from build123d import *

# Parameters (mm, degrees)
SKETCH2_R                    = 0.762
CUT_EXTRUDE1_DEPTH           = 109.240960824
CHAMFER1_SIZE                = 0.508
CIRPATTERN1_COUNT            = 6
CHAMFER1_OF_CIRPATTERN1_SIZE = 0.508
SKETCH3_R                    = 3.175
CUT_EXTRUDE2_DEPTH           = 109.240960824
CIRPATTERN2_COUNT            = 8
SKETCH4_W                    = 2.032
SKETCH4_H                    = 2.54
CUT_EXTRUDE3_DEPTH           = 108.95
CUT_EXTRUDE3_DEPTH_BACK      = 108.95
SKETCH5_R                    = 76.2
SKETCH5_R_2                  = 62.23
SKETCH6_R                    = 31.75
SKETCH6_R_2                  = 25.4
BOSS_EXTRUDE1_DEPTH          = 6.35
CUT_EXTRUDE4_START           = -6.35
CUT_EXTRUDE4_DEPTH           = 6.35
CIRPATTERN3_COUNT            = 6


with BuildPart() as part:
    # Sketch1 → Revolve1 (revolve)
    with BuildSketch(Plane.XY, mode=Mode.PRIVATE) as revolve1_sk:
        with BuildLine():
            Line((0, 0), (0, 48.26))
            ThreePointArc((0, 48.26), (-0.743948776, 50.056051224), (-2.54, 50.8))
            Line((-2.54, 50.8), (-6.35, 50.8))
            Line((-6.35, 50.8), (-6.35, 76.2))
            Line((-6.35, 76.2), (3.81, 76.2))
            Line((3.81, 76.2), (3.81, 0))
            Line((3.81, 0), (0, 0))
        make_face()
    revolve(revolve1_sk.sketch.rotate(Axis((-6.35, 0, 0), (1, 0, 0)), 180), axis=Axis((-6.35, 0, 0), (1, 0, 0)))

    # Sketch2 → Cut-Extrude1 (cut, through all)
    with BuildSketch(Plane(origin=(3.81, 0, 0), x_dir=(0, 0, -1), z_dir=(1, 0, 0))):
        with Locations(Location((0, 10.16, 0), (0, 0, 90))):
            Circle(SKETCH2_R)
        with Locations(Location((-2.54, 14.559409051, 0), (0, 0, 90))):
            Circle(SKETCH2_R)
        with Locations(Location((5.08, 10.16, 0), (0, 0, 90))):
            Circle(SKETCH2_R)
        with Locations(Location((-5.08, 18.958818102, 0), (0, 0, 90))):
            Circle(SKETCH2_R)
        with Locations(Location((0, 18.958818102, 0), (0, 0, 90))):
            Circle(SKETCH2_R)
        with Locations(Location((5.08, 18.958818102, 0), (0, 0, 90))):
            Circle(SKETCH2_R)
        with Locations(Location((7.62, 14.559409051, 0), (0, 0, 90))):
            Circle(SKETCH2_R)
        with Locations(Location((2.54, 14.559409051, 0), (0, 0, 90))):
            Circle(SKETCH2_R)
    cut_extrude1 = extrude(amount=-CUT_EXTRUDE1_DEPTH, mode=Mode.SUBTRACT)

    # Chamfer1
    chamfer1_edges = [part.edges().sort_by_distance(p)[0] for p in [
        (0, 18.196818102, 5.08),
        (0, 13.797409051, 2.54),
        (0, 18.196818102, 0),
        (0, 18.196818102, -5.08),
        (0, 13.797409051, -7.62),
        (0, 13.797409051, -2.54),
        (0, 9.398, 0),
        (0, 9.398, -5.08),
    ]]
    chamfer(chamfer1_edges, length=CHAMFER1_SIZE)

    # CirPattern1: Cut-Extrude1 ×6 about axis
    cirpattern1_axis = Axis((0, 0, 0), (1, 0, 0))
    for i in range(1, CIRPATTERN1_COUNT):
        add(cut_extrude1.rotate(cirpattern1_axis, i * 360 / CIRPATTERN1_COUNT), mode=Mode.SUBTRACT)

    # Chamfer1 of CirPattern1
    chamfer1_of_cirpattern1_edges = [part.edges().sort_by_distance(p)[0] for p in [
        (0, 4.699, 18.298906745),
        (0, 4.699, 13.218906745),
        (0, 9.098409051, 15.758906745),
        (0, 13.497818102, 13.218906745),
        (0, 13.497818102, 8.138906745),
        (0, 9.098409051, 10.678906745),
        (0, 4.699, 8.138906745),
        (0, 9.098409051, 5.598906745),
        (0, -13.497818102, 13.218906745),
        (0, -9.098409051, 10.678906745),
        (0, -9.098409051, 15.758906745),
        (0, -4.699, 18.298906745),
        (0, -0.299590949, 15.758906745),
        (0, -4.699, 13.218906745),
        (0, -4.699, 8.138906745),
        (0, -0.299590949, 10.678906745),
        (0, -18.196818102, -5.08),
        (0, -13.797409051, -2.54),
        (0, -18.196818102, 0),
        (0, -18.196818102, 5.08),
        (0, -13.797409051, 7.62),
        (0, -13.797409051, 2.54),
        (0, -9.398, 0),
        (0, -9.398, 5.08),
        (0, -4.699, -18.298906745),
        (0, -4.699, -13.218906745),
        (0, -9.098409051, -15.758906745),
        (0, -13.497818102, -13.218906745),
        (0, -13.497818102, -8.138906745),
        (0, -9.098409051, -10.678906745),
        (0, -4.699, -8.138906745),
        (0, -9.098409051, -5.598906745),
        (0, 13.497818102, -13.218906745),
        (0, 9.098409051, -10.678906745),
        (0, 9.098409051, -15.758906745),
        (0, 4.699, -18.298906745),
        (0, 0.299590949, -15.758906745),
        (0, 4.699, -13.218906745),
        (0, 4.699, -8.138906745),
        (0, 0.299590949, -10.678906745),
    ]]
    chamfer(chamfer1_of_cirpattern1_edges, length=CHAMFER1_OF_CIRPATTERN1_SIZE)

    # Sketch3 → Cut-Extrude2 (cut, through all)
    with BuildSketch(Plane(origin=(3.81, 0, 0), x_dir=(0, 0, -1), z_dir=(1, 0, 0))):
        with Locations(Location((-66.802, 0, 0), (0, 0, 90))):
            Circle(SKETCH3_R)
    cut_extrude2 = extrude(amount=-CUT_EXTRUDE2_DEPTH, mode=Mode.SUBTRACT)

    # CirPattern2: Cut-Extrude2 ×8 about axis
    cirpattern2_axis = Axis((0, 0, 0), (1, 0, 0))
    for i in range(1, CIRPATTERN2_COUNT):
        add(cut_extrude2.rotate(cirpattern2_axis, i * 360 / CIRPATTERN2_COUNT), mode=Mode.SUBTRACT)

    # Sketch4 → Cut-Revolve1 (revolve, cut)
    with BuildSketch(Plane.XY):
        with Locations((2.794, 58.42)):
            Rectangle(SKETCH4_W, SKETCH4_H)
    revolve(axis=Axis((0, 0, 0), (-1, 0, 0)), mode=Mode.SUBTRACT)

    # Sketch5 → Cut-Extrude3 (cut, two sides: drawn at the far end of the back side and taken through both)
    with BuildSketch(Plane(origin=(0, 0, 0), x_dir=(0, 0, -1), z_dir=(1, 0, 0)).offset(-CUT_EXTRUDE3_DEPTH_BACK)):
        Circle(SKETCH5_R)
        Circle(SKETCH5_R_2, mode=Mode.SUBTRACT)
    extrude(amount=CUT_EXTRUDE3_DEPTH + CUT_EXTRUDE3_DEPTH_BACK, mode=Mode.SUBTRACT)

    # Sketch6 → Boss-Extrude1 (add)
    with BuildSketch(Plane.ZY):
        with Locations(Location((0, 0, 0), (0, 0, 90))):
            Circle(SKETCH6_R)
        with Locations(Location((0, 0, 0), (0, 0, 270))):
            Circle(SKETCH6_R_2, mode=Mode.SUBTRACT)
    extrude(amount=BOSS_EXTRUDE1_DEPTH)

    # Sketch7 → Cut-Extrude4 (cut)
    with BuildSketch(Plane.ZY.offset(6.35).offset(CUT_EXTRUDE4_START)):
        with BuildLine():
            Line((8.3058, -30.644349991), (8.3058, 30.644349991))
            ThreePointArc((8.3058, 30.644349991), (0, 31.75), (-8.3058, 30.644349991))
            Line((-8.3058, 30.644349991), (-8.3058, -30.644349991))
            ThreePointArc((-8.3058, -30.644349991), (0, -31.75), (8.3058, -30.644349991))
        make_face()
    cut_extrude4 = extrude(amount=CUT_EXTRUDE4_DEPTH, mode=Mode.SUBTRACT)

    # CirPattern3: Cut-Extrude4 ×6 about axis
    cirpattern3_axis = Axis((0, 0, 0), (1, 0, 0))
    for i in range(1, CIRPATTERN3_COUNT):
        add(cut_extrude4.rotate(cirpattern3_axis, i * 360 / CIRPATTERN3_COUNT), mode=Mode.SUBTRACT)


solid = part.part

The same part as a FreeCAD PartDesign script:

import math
import FreeCAD as App
import Part
import Sketcher
Q = App.Units.Quantity


def edges_at(feature, points):
    """Names of the edges that pass closest to the given points."""
    edges = feature.Shape.Edges
    near = lambda p: min(range(len(edges)), key=lambda i: edges[i].distToShape(Part.Vertex(*p))[0])
    return sorted({f"Edge{near(p) + 1}" for p in points})

doc = App.newDocument("Part")
params = doc.addObject("Spreadsheet::Sheet", "Params")
for row, (alias, value) in enumerate([
    ("sketch1_radius", "0.1 in"),
    ("sketch1_height", "3 in"),
    ("sketch1_height2", "1 in"),
    ("sketch1_width", "0.4 in"),
    ("revolution_angle", "360 deg"),
    ("sketch2_diameter", "0.06 in"),
    ("chamfer_size", "0.02 in"),
    ("chamfer2_size", "0.02 in"),
    ("sketch3_diameter", "0.25 in"),
    ("sketch4_height", "0.1 in"),
    ("sketch4_width", "0.08 in"),
    ("groove_angle", "360 deg"),
    ("sketch5_diameter", "6 in"),
    ("sketch5_diameter2", "4.9 in"),
    ("sketch6_diameter", "2 in"),
    ("sketch6_diameter2", "2.5 in"),
    ("pad1_length", "0.25 in"),
    ("sketch7_radius", "1.25 in"),
    ("pocket4_length", "0.25 in"),
], start=1):
    params.set(f"A{row}", alias)
    params.set(f"B{row}", "=" + value)
    params.setAlias(f"B{row}", alias)

body = doc.addObject("PartDesign::Body", "Body")

sketch1 = body.newObject("Sketcher::SketchObject", "Sketch")
sketch1.AttachmentSupport = (doc.getObject("XY_Plane"), [""])
sketch1.MapMode = "FlatFace"
sketch1.addGeometry([
    Part.LineSegment(App.Vector(0, 48.3, 0), App.Vector(0, 0, 0)),
    Part.LineSegment(App.Vector(0, 0, 0), App.Vector(3.8, 0, 0)),
    Part.LineSegment(App.Vector(3.8, 0, 0), App.Vector(3.8, 76.2, 0)),
    Part.LineSegment(App.Vector(3.8, 76.2, 0), App.Vector(-6.3, 76.2, 0)),
    Part.LineSegment(App.Vector(-6.3, 76.2, 0), App.Vector(-6.3, 50.8, 0)),
    Part.LineSegment(App.Vector(-6.3, 50.8, 0), App.Vector(-2.5, 50.8, 0)),
    Part.ArcOfCircle(Part.Circle(App.Vector(-2.5, 48.3, 0), App.Vector(0, 0, 1), 2.5), math.radians(0), math.radians(90)),
], False)
sketch1.addConstraint([
    Sketcher.Constraint("Coincident", 0, 2, 1, 1),
    Sketcher.Constraint("Coincident", 1, 2, 2, 1),
    Sketcher.Constraint("Coincident", 2, 2, 3, 1),
    Sketcher.Constraint("Coincident", 3, 2, 4, 1),
    Sketcher.Constraint("Coincident", 4, 2, 5, 1),
    Sketcher.Constraint("Tangent", 5, 2, 6, 2),
    Sketcher.Constraint("Tangent", 6, 1, 0, 1),
    Sketcher.Constraint("Vertical", 0),
    Sketcher.Constraint("Horizontal", 1),
    Sketcher.Constraint("Vertical", 2),
    Sketcher.Constraint("Horizontal", 3),
    Sketcher.Constraint("Vertical", 4),
    Sketcher.Constraint("Horizontal", 5),
    Sketcher.Constraint("Coincident", 0, 2, -1, 1),
    Sketcher.Constraint("Equal", 1, 5),
    Sketcher.Constraint("Radius", 6, Q("0.1 in")),
    Sketcher.Constraint("DistanceY", 2, 1, 2, 2, Q("3 in")),
    Sketcher.Constraint("DistanceY", 4, 2, 4, 1, Q("1 in")),
    Sketcher.Constraint("DistanceX", 3, 2, 3, 1, Q("0.4 in")),
])
sketch1.setExpression("Constraints[15]", "Params.sketch1_radius")
sketch1.setExpression("Constraints[16]", "Params.sketch1_height")
sketch1.setExpression("Constraints[17]", "Params.sketch1_height2")
sketch1.setExpression("Constraints[18]", "Params.sketch1_width")
revolution = body.newObject("PartDesign::Revolution", "Revolution")
revolution.Profile = sketch1
revolution.ReferenceAxis = (sketch1, ["H_Axis"])
revolution.setExpression("Angle", "Params.revolution_angle")

sketch2 = body.newObject("Sketcher::SketchObject", "Sketch001")
sketch2.AttachmentSupport = (doc.getObject("YZ_Plane"), [""])
sketch2.MapMode = "FlatFace"
sketch2.AttachmentOffset = App.Placement(App.Vector(0, 0, 0.15 * 25.4), App.Rotation())
sketch2.addGeometry([
    Part.Circle(App.Vector(10.2, 0, 0), App.Vector(0, 0, 1), 0.8),
    Part.Circle(App.Vector(14.6, 2.5, 0), App.Vector(0, 0, 1), 0.8),
    Part.Circle(App.Vector(10.2, -5.1, 0), App.Vector(0, 0, 1), 0.8),
    Part.Circle(App.Vector(19, 5.1, 0), App.Vector(0, 0, 1), 0.8),
    Part.Circle(App.Vector(19, 0, 0), App.Vector(0, 0, 1), 0.8),
    Part.Circle(App.Vector(19, -5.1, 0), App.Vector(0, 0, 1), 0.8),
    Part.Circle(App.Vector(14.6, -7.6, 0), App.Vector(0, 0, 1), 0.8),
    Part.Circle(App.Vector(14.6, -2.5, 0), App.Vector(0, 0, 1), 0.8),
], False)
sketch2.addConstraint([
    Sketcher.Constraint("Equal", 0, 1),
    Sketcher.Constraint("Equal", 1, 2),
    Sketcher.Constraint("Equal", 2, 3),
    Sketcher.Constraint("Equal", 3, 4),
    Sketcher.Constraint("Equal", 4, 5),
    Sketcher.Constraint("Equal", 5, 6),
    Sketcher.Constraint("Equal", 6, 7),
    Sketcher.Constraint("Symmetric", 3, 3, 5, 3, -1),
    Sketcher.Constraint("Symmetric", 1, 3, 7, 3, -1),
    Sketcher.Constraint("PointOnObject", 0, 3, -1),
    Sketcher.Constraint("PointOnObject", 4, 3, -1),
    Sketcher.Constraint("Horizontal", 2, 3, 5, 3),
    Sketcher.Constraint("Vertical", 0, 3, 2, 3),
    Sketcher.Constraint("Vertical", 3, 3, 4, 3),
    Sketcher.Constraint("Vertical", 1, 3, 6, 3),
    Sketcher.Constraint("Diameter", 0, Q("0.06 in")),
    Sketcher.Constraint("DistanceX", -1, 1, 0, 3, Q("0.4 in")),
    Sketcher.Constraint("DistanceY", -1, 1, 1, 3, Q("0.1 in")),
    Sketcher.Constraint("DistanceY", 2, 3, -1, 1, Q("0.2 in")),
    Sketcher.Constraint("DistanceY", 6, 3, -1, 1, Q("0.3 in")),
    Sketcher.Constraint("DistanceX", -1, 1, 1, 3, 14.559409),
    Sketcher.Constraint("DistanceX", -1, 1, 3, 3, 18.958818),
])
sketch2.setExpression("Constraints[15]", "Params.sketch2_diameter")
pocket1 = body.newObject("PartDesign::Pocket", "Pocket")
pocket1.Profile = sketch2
pocket1.Type = "ThroughAll"
doc.recompute()

chamfer = body.newObject("PartDesign::Chamfer", "Chamfer")
chamfer.Base = (pocket1, edges_at(pocket1, [
    (0, 18.197, 5.08),
    (0, 13.797, 2.54),
    (0, 18.197, 0),
    (0, 18.197, -5.08),
    (0, 13.797, -7.62),
    (0, 13.797, -2.54),
    (0, 9.398, 0),
    (0, 9.398, -5.08),
]))
chamfer.setExpression("Size", "Params.chamfer_size")
doc.recompute()

polarpattern = body.newObject("PartDesign::PolarPattern", "PolarPattern")
polarpattern.Originals = [pocket1]
polarpattern.Axis = (doc.getObject("X_Axis"), [""])
polarpattern.Angle = 360
polarpattern.Occurrences = 6
body.Tip = polarpattern
doc.recompute()

chamfer2 = body.newObject("PartDesign::Chamfer", "Chamfer001")
chamfer2.Base = (polarpattern, edges_at(polarpattern, [
    (0, 4.699, 18.299),
    (0, 4.699, 13.219),
    (0, 9.098, 15.759),
    (0, 13.498, 13.219),
    (0, 13.498, 8.139),
    (0, 9.098, 10.679),
    (0, 4.699, 8.139),
    (0, 9.098, 5.599),
    (0, -13.498, 13.219),
    (0, -9.098, 10.679),
    (0, -9.098, 15.759),
    (0, -4.699, 18.299),
    (0, -0.3, 15.759),
    (0, -4.699, 13.219),
    (0, -4.699, 8.139),
    (0, -0.3, 10.679),
    (0, -18.197, -5.08),
    (0, -13.797, -2.54),
    (0, -18.197, 0),
    (0, -18.197, 5.08),
    (0, -13.797, 7.62),
    (0, -13.797, 2.54),
    (0, -9.398, 0),
    (0, -9.398, 5.08),
    (0, -4.699, -18.299),
    (0, -4.699, -13.219),
    (0, -9.098, -15.759),
    (0, -13.498, -13.219),
    (0, -13.498, -8.139),
    (0, -9.098, -10.679),
    (0, -4.699, -8.139),
    (0, -9.098, -5.599),
    (0, 13.498, -13.219),
    (0, 9.098, -10.679),
    (0, 9.098, -15.759),
    (0, 4.699, -18.299),
    (0, 0.3, -15.759),
    (0, 4.699, -13.219),
    (0, 4.699, -8.139),
    (0, 0.3, -10.679),
]))
chamfer2.setExpression("Size", "Params.chamfer2_size")

sketch3 = body.newObject("Sketcher::SketchObject", "Sketch002")
sketch3.AttachmentSupport = (doc.getObject("YZ_Plane"), [""])
sketch3.MapMode = "FlatFace"
sketch3.AttachmentOffset = App.Placement(App.Vector(0, 0, 0.15 * 25.4), App.Rotation())
sketch3.addGeometry(Part.Circle(App.Vector(0, 66.8, 0), App.Vector(0, 0, 1), 3.2), False)
sketch3.addConstraint([
    Sketcher.Constraint("PointOnObject", 0, 3, -2),
    Sketcher.Constraint("Diameter", 0, Q("0.25 in")),
    Sketcher.Constraint("DistanceY", -1, 1, 0, 3, Q("2.63 in")),
])
sketch3.setExpression("Constraints[1]", "Params.sketch3_diameter")
pocket2 = body.newObject("PartDesign::Pocket", "Pocket001")
pocket2.Profile = sketch3
pocket2.Type = "ThroughAll"
doc.recompute()

polarpattern2 = body.newObject("PartDesign::PolarPattern", "PolarPattern001")
polarpattern2.Originals = [pocket2]
polarpattern2.Axis = (doc.getObject("X_Axis"), [""])
polarpattern2.Angle = 360
polarpattern2.Occurrences = 8
body.Tip = polarpattern2

sketch4 = body.newObject("Sketcher::SketchObject", "Sketch003")
sketch4.AttachmentSupport = (doc.getObject("XY_Plane"), [""])
sketch4.MapMode = "FlatFace"
sketch4.addGeometry([
    Part.LineSegment(App.Vector(1.8, 59.7, 0), App.Vector(1.8, 57.1, 0)),
    Part.LineSegment(App.Vector(1.8, 57.1, 0), App.Vector(3.8, 57.1, 0)),
    Part.LineSegment(App.Vector(3.8, 57.1, 0), App.Vector(3.8, 59.7, 0)),
    Part.LineSegment(App.Vector(3.8, 59.7, 0), App.Vector(1.8, 59.7, 0)),
], False)
sketch4.addConstraint([
    Sketcher.Constraint("Coincident", 0, 2, 1, 1),
    Sketcher.Constraint("Coincident", 1, 2, 2, 1),
    Sketcher.Constraint("Coincident", 2, 2, 3, 1),
    Sketcher.Constraint("Coincident", 3, 2, 0, 1),
    Sketcher.Constraint("Vertical", 0),
    Sketcher.Constraint("Horizontal", 1),
    Sketcher.Constraint("Vertical", 2),
    Sketcher.Constraint("Horizontal", 3),
    Sketcher.Constraint("DistanceY", 0, 2, 0, 1, Q("0.1 in")),
    Sketcher.Constraint("DistanceX", 1, 1, 1, 2, Q("0.08 in")),
    Sketcher.Constraint("DistanceX", -1, 1, 0, 2, Q("0.07 in")),
    Sketcher.Constraint("DistanceY", -1, 1, 0, 2, Q("2.25 in")),
])
sketch4.setExpression("Constraints[8]", "Params.sketch4_height")
sketch4.setExpression("Constraints[9]", "Params.sketch4_width")
groove = body.newObject("PartDesign::Groove", "Groove")
groove.Profile = sketch4
groove.ReferenceAxis = (sketch4, ["H_Axis"])
groove.setExpression("Angle", "Params.groove_angle")

sketch5 = body.newObject("Sketcher::SketchObject", "Sketch004")
sketch5.AttachmentSupport = (doc.getObject("YZ_Plane"), [""])
sketch5.MapMode = "FlatFace"
sketch5.addGeometry([
    Part.Circle(App.Vector(0, 0, 0), App.Vector(0, 0, 1), 76),
    Part.Circle(App.Vector(0, 0, 0), App.Vector(0, 0, 1), 62),
], False)
sketch5.addConstraint([
    Sketcher.Constraint("Coincident", 0, 3, -1, 1),
    Sketcher.Constraint("Coincident", 1, 3, -1, 1),
    Sketcher.Constraint("Diameter", 0, Q("6 in")),
    Sketcher.Constraint("Diameter", 1, Q("4.9 in")),
])
sketch5.setExpression("Constraints[2]", "Params.sketch5_diameter")
sketch5.setExpression("Constraints[3]", "Params.sketch5_diameter2")
pocket3 = body.newObject("PartDesign::Pocket", "Pocket002")
pocket3.Profile = sketch5
pocket3.Type = "ThroughAll"
pocket3.Midplane = True

sketch6 = body.newObject("Sketcher::SketchObject", "Sketch005")
sketch6.AttachmentSupport = (doc.getObject("YZ_Plane"), [""])
sketch6.MapMode = "FlatFace"
sketch6.addGeometry([
    Part.Circle(App.Vector(0, 0, 0), App.Vector(0, 0, 1), 32),
    Part.Circle(App.Vector(0, 0, 0), App.Vector(0, 0, 1), 25),
], False)
sketch6.addConstraint([
    Sketcher.Constraint("Coincident", 0, 3, -1, 1),
    Sketcher.Constraint("Coincident", 1, 3, -1, 1),
    Sketcher.Constraint("Diameter", 1, Q("2 in")),
    Sketcher.Constraint("Diameter", 0, Q("2.5 in")),
])
sketch6.setExpression("Constraints[2]", "Params.sketch6_diameter")
sketch6.setExpression("Constraints[3]", "Params.sketch6_diameter2")
pad1 = body.newObject("PartDesign::Pad", "Pad")
pad1.Profile = sketch6
pad1.setExpression("Length", "Params.pad1_length")
pad1.Reversed = True

sketch7 = body.newObject("Sketcher::SketchObject", "Sketch006")
sketch7.AttachmentSupport = (doc.getObject("YZ_Plane"), [""])
sketch7.MapMode = "FlatFace"
sketch7.addGeometry([
    Part.LineSegment(App.Vector(-31, 8, 0), App.Vector(31, 8, 0)),
    Part.ArcOfCircle(Part.Circle(App.Vector(0, 0, 0), App.Vector(0, 0, 1), 32), math.radians(-15), math.radians(15)),
    Part.LineSegment(App.Vector(31, -8, 0), App.Vector(-31, -8, 0)),
    Part.ArcOfCircle(Part.Circle(App.Vector(0, 0, 0), App.Vector(0, 0, 1), 32), math.radians(165), math.radians(195)),
], False)
sketch7.addConstraint([
    Sketcher.Constraint("Coincident", 0, 2, 1, 2),
    Sketcher.Constraint("Coincident", 1, 1, 2, 1),
    Sketcher.Constraint("Coincident", 2, 2, 3, 2),
    Sketcher.Constraint("Coincident", 3, 1, 0, 1),
    Sketcher.Constraint("Horizontal", 0),
    Sketcher.Constraint("Horizontal", 2),
    Sketcher.Constraint("Coincident", 1, 3, -1, 1),
    Sketcher.Constraint("Coincident", 3, 3, -1, 1),
    Sketcher.Constraint("Equal", 1, 3),
    Sketcher.Constraint("Vertical", 0, 2, 1, 1),
    Sketcher.Constraint("Radius", 1, Q("1.25 in")),
    Sketcher.Constraint("DistanceY", -1, 1, 0, 2, Q("0.327 in")),
])
sketch7.setExpression("Constraints[10]", "Params.sketch7_radius")
pocket4 = body.newObject("PartDesign::Pocket", "Pocket003")
pocket4.Profile = sketch7
pocket4.setExpression("Length", "Params.pocket4_length")
doc.recompute()

polarpattern3 = body.newObject("PartDesign::PolarPattern", "PolarPattern002")
polarpattern3.Originals = [pocket4]
polarpattern3.Axis = (doc.getObject("X_Axis"), [""])
polarpattern3.Angle = 360
polarpattern3.Occurrences = 6
body.Tip = polarpattern3

doc.recompute()
